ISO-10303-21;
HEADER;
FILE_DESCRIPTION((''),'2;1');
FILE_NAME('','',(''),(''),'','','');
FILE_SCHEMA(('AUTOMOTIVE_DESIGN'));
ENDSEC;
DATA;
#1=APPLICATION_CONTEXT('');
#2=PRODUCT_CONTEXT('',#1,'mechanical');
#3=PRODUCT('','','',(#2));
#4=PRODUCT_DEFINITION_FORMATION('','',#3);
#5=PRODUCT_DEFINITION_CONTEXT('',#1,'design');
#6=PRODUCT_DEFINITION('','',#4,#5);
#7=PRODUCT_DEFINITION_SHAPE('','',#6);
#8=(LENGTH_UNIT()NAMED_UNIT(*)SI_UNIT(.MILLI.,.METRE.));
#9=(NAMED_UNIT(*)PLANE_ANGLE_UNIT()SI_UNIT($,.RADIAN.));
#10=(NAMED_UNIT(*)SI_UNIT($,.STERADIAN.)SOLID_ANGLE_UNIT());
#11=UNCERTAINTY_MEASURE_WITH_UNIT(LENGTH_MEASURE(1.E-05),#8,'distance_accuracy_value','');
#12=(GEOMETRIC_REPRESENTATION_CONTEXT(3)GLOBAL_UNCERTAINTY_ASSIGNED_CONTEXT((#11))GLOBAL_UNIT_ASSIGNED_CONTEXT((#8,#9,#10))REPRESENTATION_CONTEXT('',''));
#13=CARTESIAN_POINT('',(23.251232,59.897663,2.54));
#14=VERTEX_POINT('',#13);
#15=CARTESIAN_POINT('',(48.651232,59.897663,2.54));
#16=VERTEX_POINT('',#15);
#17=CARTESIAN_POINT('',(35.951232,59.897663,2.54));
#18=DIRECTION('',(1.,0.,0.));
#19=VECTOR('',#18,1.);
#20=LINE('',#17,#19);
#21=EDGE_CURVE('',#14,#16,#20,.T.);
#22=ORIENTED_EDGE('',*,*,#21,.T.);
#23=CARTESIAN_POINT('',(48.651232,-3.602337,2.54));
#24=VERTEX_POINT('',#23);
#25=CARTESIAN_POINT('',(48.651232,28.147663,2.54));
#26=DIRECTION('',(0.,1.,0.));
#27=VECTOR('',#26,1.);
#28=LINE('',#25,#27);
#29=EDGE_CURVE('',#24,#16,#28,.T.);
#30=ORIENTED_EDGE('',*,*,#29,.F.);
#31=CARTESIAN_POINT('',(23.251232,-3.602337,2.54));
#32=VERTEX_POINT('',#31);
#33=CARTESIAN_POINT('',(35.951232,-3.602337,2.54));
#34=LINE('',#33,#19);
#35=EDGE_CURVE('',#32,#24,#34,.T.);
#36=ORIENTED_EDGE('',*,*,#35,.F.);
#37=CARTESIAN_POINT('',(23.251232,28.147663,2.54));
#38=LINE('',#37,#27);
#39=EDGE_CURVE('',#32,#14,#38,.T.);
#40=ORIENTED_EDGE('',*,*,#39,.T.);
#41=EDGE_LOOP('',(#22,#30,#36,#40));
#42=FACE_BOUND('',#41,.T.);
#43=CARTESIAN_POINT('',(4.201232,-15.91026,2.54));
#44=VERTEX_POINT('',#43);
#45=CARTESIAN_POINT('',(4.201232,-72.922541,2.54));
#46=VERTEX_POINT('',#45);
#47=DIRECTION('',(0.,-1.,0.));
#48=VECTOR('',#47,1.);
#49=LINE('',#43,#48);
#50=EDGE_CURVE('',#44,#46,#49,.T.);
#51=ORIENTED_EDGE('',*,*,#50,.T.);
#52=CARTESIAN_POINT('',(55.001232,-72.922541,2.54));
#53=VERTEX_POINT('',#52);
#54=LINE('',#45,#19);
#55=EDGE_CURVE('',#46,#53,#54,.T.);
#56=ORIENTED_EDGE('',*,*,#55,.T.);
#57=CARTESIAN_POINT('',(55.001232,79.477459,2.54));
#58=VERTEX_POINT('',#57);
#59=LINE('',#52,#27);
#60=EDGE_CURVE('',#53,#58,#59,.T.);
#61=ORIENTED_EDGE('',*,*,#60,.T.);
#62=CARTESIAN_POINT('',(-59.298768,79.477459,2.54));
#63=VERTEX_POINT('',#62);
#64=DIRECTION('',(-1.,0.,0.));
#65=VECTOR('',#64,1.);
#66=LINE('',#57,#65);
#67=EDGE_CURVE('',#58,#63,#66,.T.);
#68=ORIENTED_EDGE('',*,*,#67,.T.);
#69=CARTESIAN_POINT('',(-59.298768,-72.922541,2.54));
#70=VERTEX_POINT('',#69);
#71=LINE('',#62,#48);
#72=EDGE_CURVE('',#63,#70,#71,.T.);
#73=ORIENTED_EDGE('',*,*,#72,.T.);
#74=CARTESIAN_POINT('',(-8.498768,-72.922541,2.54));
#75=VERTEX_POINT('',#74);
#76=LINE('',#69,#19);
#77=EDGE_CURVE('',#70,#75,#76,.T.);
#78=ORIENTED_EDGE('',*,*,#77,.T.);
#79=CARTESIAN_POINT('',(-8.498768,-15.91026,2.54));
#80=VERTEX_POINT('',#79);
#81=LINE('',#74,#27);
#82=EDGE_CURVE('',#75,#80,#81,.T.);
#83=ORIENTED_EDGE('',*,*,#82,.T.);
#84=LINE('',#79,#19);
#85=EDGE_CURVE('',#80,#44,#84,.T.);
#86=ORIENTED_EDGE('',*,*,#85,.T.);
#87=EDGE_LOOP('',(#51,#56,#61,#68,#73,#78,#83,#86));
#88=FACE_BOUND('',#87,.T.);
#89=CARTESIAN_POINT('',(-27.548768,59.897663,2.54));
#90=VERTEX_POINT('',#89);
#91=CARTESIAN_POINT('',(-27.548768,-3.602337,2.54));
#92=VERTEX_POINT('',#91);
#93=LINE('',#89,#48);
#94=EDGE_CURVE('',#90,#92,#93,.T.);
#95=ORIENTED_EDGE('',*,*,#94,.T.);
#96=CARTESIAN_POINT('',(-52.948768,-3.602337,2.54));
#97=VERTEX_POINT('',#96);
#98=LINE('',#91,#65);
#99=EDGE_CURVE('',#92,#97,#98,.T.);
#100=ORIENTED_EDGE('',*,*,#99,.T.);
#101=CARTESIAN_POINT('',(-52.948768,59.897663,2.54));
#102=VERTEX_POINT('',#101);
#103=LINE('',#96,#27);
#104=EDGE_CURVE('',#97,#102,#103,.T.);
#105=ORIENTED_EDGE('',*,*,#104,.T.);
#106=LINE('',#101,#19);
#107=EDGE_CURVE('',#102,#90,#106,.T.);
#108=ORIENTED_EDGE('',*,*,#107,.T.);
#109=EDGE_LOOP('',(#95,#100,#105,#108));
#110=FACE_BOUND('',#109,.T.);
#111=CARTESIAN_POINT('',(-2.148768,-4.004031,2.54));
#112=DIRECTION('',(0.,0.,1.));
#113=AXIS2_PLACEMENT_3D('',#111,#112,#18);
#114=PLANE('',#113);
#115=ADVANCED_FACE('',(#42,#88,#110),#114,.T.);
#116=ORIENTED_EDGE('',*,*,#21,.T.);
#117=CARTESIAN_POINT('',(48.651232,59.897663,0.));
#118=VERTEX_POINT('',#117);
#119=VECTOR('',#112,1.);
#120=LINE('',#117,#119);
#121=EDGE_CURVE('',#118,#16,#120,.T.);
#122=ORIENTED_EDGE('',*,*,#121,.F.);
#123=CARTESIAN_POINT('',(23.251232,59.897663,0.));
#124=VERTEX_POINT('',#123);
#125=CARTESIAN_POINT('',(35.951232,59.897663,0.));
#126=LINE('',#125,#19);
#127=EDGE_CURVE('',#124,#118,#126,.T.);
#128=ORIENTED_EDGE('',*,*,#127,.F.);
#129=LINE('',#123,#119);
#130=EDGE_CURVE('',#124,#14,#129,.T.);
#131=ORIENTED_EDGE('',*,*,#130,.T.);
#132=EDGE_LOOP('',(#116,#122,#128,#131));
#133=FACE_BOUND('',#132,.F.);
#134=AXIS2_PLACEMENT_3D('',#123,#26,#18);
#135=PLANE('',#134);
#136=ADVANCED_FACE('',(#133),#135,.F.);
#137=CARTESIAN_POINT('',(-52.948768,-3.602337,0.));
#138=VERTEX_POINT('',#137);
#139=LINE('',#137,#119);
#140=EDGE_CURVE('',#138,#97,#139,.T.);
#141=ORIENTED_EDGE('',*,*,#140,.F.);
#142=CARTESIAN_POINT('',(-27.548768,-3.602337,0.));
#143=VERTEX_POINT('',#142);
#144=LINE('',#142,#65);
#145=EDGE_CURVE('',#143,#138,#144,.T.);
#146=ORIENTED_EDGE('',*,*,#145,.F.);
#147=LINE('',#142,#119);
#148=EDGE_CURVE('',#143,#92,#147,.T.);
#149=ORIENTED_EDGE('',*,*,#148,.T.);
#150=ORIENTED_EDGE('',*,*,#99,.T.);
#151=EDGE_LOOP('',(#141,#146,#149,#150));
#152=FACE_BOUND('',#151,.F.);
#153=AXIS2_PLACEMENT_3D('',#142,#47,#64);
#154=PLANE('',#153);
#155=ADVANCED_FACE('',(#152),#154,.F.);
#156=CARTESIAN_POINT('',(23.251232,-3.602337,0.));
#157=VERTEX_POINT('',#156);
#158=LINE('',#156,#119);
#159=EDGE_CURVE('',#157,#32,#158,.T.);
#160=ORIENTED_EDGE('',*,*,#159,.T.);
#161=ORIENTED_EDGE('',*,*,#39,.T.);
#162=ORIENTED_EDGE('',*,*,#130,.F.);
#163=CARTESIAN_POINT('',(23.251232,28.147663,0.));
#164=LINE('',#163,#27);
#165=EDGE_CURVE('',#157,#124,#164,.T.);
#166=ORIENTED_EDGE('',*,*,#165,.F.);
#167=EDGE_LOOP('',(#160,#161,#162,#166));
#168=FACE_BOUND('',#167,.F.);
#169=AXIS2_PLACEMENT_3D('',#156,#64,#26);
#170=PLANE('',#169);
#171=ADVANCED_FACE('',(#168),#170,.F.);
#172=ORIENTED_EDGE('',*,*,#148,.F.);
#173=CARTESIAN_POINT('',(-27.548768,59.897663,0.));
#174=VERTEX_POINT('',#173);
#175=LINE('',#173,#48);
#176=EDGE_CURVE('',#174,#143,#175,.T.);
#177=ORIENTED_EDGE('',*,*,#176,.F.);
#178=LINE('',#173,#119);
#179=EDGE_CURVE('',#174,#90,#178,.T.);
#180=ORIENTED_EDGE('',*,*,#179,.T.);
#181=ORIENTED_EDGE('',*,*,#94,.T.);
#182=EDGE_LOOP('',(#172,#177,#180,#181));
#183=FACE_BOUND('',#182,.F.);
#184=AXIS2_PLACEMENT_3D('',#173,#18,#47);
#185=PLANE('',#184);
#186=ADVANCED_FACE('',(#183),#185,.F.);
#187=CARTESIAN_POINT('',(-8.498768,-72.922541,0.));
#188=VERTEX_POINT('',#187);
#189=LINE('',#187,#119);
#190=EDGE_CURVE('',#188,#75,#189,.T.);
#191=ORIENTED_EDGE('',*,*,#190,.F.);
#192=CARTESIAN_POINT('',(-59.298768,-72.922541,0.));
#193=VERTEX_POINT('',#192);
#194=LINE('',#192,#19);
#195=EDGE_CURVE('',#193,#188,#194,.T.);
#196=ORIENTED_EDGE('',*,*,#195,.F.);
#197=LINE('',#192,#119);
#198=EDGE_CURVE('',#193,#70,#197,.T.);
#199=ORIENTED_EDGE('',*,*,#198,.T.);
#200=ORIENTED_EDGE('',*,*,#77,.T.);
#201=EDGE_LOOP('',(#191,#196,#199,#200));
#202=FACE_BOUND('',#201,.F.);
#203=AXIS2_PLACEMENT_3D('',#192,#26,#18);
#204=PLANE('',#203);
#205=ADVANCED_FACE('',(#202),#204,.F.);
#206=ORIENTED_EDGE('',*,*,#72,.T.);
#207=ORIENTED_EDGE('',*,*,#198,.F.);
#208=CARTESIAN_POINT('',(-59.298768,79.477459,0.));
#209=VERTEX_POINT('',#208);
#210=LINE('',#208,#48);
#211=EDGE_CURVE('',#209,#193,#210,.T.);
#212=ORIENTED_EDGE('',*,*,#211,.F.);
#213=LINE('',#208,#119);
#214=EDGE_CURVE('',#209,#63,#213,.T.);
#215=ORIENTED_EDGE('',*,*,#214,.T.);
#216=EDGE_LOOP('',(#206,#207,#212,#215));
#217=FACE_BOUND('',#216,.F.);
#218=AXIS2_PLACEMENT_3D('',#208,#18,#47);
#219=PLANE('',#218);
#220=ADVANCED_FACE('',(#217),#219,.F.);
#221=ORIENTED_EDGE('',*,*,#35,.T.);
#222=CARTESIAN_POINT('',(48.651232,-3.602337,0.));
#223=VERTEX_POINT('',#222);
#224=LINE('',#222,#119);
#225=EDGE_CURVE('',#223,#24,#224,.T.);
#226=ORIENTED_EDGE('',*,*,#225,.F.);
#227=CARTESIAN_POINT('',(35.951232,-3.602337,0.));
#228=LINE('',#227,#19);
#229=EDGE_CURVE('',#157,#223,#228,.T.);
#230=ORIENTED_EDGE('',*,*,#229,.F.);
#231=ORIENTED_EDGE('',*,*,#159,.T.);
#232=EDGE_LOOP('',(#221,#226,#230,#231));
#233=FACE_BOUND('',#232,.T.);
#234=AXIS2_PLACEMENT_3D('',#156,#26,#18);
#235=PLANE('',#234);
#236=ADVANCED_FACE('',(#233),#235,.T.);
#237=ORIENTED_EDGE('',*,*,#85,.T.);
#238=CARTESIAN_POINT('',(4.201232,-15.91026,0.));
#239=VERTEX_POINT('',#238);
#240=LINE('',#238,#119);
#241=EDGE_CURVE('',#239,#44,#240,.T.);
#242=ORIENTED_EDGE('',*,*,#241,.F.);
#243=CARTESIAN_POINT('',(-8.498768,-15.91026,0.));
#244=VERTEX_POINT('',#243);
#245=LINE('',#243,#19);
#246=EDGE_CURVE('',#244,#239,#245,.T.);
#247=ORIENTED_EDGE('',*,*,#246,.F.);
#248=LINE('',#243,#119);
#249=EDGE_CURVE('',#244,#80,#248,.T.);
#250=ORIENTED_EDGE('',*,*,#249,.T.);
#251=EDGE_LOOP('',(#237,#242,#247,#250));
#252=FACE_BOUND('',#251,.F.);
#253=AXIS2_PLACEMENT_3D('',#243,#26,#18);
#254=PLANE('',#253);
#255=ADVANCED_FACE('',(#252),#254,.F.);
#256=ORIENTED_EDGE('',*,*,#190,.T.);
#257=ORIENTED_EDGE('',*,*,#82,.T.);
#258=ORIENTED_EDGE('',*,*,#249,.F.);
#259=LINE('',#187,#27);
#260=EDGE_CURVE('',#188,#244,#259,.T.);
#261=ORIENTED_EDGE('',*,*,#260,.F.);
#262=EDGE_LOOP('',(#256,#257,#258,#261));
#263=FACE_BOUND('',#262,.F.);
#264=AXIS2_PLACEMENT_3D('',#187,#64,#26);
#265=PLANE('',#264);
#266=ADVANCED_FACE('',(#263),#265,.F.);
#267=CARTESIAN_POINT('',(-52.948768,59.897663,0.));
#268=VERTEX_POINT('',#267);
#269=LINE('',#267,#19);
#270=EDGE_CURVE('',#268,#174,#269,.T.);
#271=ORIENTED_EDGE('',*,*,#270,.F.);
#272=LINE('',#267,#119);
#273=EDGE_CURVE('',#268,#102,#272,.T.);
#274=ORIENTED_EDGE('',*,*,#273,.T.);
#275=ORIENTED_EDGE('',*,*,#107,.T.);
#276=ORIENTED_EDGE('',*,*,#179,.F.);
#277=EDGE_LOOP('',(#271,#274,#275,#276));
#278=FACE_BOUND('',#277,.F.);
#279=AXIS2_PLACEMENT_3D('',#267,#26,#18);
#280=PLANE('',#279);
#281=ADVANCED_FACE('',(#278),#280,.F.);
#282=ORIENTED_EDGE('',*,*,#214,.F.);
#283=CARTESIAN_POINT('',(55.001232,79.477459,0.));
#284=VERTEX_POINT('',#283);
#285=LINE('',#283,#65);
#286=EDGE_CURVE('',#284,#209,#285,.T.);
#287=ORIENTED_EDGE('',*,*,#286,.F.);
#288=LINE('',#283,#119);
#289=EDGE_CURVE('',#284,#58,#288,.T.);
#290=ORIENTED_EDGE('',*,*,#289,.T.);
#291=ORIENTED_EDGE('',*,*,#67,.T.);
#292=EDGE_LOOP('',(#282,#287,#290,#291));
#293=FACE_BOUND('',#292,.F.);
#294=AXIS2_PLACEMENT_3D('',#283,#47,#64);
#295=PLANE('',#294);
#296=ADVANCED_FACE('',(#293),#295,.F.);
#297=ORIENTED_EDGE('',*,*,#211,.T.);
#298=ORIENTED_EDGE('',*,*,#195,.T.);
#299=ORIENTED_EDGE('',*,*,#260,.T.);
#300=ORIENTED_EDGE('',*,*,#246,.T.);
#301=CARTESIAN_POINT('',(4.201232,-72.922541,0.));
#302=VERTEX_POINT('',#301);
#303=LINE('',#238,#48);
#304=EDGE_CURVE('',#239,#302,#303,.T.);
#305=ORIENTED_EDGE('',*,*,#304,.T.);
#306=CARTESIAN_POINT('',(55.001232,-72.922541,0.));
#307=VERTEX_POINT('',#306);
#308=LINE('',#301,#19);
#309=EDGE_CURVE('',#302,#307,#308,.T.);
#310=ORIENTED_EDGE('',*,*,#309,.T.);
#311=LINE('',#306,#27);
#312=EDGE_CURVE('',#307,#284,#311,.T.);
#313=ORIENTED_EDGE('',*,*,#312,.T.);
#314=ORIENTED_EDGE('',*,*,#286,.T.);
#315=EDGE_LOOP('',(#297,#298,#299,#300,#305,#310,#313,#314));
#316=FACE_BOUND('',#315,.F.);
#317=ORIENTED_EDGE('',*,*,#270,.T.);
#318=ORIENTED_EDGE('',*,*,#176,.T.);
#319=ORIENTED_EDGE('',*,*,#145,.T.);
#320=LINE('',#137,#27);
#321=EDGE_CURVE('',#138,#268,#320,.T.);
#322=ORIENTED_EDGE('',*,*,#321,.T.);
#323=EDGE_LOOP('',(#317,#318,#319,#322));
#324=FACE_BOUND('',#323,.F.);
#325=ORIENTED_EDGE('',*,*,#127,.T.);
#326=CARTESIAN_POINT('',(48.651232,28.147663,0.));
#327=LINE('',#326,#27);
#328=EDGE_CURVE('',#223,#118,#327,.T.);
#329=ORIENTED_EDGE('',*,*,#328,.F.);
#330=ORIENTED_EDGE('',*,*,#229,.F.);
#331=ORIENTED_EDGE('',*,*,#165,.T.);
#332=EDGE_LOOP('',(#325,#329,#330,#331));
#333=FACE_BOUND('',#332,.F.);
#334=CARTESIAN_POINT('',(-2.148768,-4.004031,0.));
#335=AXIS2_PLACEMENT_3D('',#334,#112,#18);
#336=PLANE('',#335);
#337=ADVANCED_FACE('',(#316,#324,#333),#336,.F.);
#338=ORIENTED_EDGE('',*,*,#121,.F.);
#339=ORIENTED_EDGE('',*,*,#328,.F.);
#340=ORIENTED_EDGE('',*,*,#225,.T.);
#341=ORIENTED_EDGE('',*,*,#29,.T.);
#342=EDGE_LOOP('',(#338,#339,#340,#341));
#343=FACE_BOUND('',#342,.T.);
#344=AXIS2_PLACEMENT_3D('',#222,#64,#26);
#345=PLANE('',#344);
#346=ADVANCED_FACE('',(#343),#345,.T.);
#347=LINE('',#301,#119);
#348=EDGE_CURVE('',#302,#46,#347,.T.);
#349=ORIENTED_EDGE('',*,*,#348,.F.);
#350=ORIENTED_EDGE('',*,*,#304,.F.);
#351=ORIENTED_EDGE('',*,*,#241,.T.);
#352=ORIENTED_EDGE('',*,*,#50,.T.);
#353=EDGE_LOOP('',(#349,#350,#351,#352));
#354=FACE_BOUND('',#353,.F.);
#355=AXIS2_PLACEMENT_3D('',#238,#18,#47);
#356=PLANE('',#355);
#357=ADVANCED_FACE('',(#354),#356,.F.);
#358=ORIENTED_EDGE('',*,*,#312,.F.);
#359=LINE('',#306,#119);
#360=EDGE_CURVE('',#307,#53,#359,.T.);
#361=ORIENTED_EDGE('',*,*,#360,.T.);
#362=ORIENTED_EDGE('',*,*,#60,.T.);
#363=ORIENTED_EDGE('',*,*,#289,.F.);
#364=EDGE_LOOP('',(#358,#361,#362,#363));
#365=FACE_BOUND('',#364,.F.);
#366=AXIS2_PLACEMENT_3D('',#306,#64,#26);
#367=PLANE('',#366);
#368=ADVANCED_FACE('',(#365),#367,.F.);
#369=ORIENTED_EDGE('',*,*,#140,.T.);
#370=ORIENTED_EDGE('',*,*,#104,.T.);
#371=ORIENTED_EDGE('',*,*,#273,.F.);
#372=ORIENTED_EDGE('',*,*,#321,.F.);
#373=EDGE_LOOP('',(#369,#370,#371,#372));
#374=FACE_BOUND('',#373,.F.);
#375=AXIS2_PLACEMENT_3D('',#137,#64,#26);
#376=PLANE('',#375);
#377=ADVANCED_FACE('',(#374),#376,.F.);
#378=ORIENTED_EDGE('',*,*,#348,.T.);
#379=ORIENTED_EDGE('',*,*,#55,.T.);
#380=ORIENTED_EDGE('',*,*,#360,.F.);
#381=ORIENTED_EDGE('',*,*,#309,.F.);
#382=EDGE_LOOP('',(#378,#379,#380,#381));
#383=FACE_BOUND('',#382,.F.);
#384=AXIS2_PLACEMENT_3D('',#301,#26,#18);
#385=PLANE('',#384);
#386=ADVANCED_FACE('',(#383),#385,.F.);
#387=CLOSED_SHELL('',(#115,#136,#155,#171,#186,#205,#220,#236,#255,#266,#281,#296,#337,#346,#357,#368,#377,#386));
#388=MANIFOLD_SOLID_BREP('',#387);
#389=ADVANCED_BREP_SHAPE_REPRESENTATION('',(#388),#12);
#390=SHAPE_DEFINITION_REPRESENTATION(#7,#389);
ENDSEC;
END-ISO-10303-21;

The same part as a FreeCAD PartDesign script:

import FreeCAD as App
import Part
import Sketcher
Q = App.Units.Quantity

doc = App.newDocument("Part")
params = doc.addObject("Spreadsheet::Sheet", "Params")
for row, (alias, value) in enumerate([
    ("sketch1_width", "2 in"),
    ("sketch1_width2", "1 in"),
    ("sketch1_height", "6 in"),
    ("sketch1_width3", "4.5 in"),
    ("sketch1_height2", "2.5 in"),
    ("pad1_length", "0.1 in"),
], start=1):
    params.set(f"A{row}", alias)
    params.set(f"B{row}", "=" + value)
    params.setAlias(f"B{row}", alias)

body = doc.addObject("PartDesign::Body", "Body")

# Sketch on XY plane
sketch1 = body.newObject("Sketcher::SketchObject", "Sketch")
sketch1.AttachmentSupport = (doc.getObject("XY_Plane"), [""])
sketch1.MapMode = "FlatFace"
sketch1.addGeometry([
    Part.LineSegment(App.Vector(55, 79, 0), App.Vector(-59, 79, 0)),  # 0
    Part.LineSegment(App.Vector(-59, 79, 0), App.Vector(-59, -73, 0)),  # 1
    Part.LineSegment(App.Vector(-59, -73, 0), App.Vector(-8, -73, 0)),  # 2
    Part.LineSegment(App.Vector(-8, -73, 0), App.Vector(-8, -16, 0)),  # 3
    Part.LineSegment(App.Vector(-8, -16, 0), App.Vector(4, -16, 0)),  # 4
    Part.LineSegment(App.Vector(4, -16, 0), App.Vector(4, -73, 0)),  # 5
    Part.LineSegment(App.Vector(4, -73, 0), App.Vector(55, -73, 0)),  # 6
    Part.LineSegment(App.Vector(55, -73, 0), App.Vector(55, 79, 0)),  # 7
    Part.LineSegment(App.Vector(-53, -4, 0), App.Vector(-53, 60, 0)),  # 8
    Part.LineSegment(App.Vector(-53, 60, 0), App.Vector(-28, 60, 0)),  # 9
    Part.LineSegment(App.Vector(-28, 60, 0), App.Vector(-28, -4, 0)),  # 10
    Part.LineSegment(App.Vector(-28, -4, 0), App.Vector(-53, -4, 0)),  # 11
    Part.LineSegment(App.Vector(49, -4, 0), App.Vector(23, -4, 0)),  # 12
    Part.LineSegment(App.Vector(23, -4, 0), App.Vector(23, 60, 0)),  # 13
    Part.LineSegment(App.Vector(23, 60, 0), App.Vector(49, 60, 0)),  # 14
    Part.LineSegment(App.Vector(49, 60, 0), App.Vector(49, -4, 0)),  # 15
], False)
sketch1.addConstraint([
    Sketcher.Constraint("Coincident", 0, 2, 1, 1),
    Sketcher.Constraint("Coincident", 1, 2, 2, 1),
    Sketcher.Constraint("Coincident", 2, 2, 3, 1),
    Sketcher.Constraint("Coincident", 3, 2, 4, 1),
    Sketcher.Constraint("Coincident", 4, 2, 5, 1),
    Sketcher.Constraint("Coincident", 5, 2, 6, 1),
    Sketcher.Constraint("Coincident", 6, 2, 7, 1),
    Sketcher.Constraint("Coincident", 7, 2, 0, 1),
    Sketcher.Constraint("Coincident", 8, 2, 9, 1),
    Sketcher.Constraint("Coincident", 9, 2, 10, 1),
    Sketcher.Constraint("Coincident", 10, 2, 11, 1),
    Sketcher.Constraint("Coincident", 11, 2, 8, 1),
    Sketcher.Constraint("Coincident", 12, 2, 13, 1),
    Sketcher.Constraint("Coincident", 13, 2, 14, 1),
    Sketcher.Constraint("Coincident", 14, 2, 15, 1),
    Sketcher.Constraint("Coincident", 15, 2, 12, 1),
    Sketcher.Constraint("Horizontal", 0),
    Sketcher.Constraint("Vertical", 1),
    Sketcher.Constraint("Horizontal", 2),
    Sketcher.Constraint("Vertical", 3),
    Sketcher.Constraint("Horizontal", 4),
    Sketcher.Constraint("Vertical", 5),
    Sketcher.Constraint("Horizontal", 6),
    Sketcher.Constraint("Vertical", 7),
    Sketcher.Constraint("Vertical", 8),
    Sketcher.Constraint("Horizontal", 9),
    Sketcher.Constraint("Vertical", 10),
    Sketcher.Constraint("Horizontal", 11),
    Sketcher.Constraint("Horizontal", 12),
    Sketcher.Constraint("Vertical", 13),
    Sketcher.Constraint("Horizontal", 14),
    Sketcher.Constraint("Vertical", 15),
    Sketcher.Constraint("Horizontal", 2, 2, 5, 2),
    Sketcher.Constraint("Horizontal", 11, 2, 12, 2),
    Sketcher.Constraint("Horizontal", 9, 2, 13, 2),
    Sketcher.Constraint("Equal", 2, 6),
    Sketcher.Constraint("Equal", 11, 12),
    Sketcher.Constraint("DistanceX", 2, 1, 2, 2, Q("2 in")),
    Sketcher.Constraint("DistanceX", 9, 1, 9, 2, Q("1 in")),
    Sketcher.Constraint("DistanceY", 1, 2, 1, 1, Q("6 in")),
    Sketcher.Constraint("DistanceX", 0, 2, 0, 1, Q("4.5 in")),
    Sketcher.Constraint("DistanceY", 8, 1, 8, 2, Q("2.5 in")),
    Sketcher.Constraint("DistanceX", 10, 2, 12, 2, Q("2 in")),
    Sketcher.Constraint("DistanceX", 0, 2, 8, 2, Q("0.25 in")),
    Sketcher.Constraint("DistanceY", 3, 1, 3, 2, Q("57.012281 mm")),
    Sketcher.Constraint("DistanceX", 0, 2, -1, 1, Q("59.298768 mm")),
    Sketcher.Constraint("DistanceY", -1, 1, 0, 2, Q("79.477459 mm")),
    Sketcher.Constraint("DistanceY", -1, 1, 8, 2, Q("59.897663 mm")),
])
sketch1.setExpression("Constraints[37]", "Params.sketch1_width")
sketch1.setExpression("Constraints[38]", "Params.sketch1_width2")
sketch1.setExpression("Constraints[39]", "Params.sketch1_height")
sketch1.setExpression("Constraints[40]", "Params.sketch1_width3")
sketch1.setExpression("Constraints[41]", "Params.sketch1_height2")
pad1 = body.newObject("PartDesign::Pad", "Pad")
pad1.Profile = sketch1
pad1.setExpression("Length", "Params.pad1_length")

doc.recompute()
